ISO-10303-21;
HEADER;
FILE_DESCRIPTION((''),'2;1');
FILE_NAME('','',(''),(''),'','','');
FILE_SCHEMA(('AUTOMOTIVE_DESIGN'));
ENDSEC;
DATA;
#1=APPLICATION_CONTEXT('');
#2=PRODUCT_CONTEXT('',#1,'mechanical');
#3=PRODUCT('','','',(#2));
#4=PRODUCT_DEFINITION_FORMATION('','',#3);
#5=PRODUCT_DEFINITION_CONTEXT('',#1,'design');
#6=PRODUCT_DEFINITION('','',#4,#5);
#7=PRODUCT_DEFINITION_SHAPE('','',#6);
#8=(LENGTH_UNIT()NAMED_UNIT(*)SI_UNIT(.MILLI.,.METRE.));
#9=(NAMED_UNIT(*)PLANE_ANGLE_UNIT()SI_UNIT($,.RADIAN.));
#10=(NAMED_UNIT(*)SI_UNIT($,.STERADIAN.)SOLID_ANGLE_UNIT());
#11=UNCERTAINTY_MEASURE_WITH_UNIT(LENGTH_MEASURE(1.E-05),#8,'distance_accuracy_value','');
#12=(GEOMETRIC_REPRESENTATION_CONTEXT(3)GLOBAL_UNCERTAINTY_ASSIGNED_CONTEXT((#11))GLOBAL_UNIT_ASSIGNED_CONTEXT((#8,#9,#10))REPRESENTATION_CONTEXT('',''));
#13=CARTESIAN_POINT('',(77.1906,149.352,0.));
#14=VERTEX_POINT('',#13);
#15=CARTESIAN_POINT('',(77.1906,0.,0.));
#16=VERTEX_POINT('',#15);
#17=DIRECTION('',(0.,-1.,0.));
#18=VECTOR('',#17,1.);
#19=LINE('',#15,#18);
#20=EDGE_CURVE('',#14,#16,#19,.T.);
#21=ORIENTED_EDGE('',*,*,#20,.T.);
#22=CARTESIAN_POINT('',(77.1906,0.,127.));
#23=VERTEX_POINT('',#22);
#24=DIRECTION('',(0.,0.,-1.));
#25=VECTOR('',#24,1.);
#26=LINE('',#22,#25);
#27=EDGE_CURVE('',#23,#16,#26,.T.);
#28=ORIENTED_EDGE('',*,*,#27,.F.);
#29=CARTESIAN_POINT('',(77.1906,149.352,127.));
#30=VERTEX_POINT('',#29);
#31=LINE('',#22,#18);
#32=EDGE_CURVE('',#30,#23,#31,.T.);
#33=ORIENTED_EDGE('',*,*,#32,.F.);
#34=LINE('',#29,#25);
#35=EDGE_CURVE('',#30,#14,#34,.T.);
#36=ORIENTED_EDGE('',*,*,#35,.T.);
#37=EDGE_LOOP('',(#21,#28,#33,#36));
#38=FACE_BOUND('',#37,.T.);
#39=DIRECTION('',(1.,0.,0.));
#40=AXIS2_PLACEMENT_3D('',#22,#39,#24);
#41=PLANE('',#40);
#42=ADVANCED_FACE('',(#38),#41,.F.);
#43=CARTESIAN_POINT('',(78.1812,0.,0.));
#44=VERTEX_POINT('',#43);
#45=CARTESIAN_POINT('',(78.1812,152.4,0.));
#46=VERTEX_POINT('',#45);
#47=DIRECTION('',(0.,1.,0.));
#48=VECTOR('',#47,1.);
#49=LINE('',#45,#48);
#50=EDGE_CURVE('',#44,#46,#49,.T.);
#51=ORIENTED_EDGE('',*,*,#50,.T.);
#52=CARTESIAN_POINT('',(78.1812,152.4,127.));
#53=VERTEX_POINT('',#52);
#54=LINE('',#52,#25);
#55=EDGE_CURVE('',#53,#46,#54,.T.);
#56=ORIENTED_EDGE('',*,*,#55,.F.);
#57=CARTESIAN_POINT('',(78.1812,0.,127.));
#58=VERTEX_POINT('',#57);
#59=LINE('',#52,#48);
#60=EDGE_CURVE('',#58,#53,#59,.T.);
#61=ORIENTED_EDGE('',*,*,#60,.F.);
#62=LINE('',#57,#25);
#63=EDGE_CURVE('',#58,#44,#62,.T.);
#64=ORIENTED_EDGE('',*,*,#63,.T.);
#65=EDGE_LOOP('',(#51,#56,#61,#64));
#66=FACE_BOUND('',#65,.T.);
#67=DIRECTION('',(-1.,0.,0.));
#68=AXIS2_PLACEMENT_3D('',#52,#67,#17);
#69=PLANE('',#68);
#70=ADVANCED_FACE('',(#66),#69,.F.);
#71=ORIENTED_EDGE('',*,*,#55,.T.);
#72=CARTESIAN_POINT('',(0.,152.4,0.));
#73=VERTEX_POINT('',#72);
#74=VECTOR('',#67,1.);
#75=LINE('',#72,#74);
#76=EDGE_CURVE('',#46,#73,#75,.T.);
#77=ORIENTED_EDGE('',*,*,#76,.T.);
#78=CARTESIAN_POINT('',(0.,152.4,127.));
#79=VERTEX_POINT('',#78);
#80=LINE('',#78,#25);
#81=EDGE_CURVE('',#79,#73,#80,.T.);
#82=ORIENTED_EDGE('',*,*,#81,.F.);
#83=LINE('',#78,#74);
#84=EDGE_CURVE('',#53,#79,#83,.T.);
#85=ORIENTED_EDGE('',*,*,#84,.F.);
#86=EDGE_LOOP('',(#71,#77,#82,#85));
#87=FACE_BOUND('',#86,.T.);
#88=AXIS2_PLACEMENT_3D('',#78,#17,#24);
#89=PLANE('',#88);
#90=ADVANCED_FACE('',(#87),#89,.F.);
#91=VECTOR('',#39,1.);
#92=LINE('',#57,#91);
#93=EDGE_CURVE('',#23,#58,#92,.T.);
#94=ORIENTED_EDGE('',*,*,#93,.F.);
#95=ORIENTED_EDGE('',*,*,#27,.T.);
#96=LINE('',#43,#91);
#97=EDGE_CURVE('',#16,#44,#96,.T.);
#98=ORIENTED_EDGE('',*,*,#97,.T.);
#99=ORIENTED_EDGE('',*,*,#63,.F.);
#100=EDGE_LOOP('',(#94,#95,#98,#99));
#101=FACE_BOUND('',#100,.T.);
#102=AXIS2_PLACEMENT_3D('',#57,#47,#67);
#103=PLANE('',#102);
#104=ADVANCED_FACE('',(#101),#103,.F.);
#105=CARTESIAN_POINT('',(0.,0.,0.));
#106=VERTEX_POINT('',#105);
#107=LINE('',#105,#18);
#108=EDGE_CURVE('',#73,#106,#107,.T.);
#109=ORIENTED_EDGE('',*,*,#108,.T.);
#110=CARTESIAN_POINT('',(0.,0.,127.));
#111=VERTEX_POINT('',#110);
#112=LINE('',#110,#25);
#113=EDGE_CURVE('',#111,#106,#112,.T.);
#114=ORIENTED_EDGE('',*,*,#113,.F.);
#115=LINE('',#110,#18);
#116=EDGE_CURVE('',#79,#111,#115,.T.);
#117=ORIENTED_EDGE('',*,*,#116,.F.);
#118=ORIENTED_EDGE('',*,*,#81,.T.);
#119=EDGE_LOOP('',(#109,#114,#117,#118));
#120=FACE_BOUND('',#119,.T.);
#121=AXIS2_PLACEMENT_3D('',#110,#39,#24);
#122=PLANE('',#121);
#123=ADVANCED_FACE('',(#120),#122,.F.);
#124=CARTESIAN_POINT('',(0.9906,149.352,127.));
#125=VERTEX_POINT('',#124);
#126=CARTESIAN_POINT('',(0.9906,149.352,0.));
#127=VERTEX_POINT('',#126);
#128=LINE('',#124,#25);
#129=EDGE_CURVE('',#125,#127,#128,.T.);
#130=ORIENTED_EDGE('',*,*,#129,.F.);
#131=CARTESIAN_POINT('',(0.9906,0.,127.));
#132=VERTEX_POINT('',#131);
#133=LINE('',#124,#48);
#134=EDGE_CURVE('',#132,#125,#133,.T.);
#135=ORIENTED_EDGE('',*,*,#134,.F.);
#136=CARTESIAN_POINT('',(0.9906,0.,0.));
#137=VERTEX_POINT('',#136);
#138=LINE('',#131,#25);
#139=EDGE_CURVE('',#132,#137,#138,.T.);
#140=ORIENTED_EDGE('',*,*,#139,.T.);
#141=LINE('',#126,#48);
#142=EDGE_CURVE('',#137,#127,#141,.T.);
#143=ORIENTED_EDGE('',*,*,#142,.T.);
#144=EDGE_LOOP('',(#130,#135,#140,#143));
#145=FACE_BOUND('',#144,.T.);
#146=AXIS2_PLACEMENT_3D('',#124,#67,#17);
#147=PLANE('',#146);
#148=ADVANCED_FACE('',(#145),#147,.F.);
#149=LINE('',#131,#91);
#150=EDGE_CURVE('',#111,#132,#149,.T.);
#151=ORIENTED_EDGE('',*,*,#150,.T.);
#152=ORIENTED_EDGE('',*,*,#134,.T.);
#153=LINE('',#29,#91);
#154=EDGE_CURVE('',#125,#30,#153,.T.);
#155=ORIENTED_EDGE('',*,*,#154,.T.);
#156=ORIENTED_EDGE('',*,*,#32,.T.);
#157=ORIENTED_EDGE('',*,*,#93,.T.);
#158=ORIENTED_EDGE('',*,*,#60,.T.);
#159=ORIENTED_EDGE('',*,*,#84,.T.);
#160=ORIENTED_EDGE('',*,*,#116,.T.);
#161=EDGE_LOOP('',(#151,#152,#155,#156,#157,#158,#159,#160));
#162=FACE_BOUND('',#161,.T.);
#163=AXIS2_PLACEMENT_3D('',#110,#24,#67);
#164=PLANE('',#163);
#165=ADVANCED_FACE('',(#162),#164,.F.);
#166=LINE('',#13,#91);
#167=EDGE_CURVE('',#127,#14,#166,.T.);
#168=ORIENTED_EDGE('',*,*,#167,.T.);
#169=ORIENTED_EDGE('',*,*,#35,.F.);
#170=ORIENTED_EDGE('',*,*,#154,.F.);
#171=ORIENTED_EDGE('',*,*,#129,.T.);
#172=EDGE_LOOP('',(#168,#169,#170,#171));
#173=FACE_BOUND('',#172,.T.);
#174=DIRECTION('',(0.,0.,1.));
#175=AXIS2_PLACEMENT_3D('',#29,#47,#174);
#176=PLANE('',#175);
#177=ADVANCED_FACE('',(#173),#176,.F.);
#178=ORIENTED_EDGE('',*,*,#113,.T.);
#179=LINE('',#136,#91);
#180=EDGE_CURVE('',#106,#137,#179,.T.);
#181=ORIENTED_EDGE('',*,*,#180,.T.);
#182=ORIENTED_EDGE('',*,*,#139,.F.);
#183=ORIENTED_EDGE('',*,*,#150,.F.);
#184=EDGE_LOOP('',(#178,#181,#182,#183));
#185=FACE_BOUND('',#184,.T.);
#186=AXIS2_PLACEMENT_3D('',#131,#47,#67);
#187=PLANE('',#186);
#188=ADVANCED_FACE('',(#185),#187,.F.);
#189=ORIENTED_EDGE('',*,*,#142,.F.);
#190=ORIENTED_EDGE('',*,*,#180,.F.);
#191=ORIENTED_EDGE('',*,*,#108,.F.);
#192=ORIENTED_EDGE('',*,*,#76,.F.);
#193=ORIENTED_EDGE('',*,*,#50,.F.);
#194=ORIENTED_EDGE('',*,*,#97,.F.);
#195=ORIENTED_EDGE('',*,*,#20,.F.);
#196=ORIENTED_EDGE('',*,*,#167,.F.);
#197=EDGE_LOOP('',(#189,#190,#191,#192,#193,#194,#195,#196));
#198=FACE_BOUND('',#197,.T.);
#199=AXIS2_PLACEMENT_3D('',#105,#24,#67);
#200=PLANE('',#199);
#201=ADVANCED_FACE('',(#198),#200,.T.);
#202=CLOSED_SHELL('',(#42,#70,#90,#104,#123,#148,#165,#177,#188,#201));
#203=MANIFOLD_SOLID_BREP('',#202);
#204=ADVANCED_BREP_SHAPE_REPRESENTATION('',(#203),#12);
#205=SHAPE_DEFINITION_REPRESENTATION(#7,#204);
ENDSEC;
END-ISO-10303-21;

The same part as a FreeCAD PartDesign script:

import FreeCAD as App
import Part
import Sketcher
Q = App.Units.Quantity

doc = App.newDocument("Part")
body = doc.addObject("PartDesign::Body", "Body")

# Sketch on XY plane
sketch1 = body.newObject("Sketcher::SketchObject", "Sketch")
sketch1.AttachmentSupport = (doc.getObject("XY_Plane"), [""])
sketch1.MapMode = "FlatFace"
sketch1.addGeometry([
    Part.LineSegment(App.Vector(0, 152.4, 0), App.Vector(0, 0, 0)),  # 0
    Part.LineSegment(App.Vector(0, 0, 0), App.Vector(0.9906, 0, 0)),  # 1
    Part.LineSegment(App.Vector(0.9906, 0, 0), App.Vector(0.9906, 149.352, 0)),  # 2
    Part.LineSegment(App.Vector(0.9906, 149.352, 0), App.Vector(77.1906, 149.352, 0)),  # 3
    Part.LineSegment(App.Vector(77.1906, 149.352, 0), App.Vector(77.1906, 0, 0)),  # 4
    Part.LineSegment(App.Vector(77.1906, 0, 0), App.Vector(78.1812, 0, 0)),  # 5
    Part.LineSegment(App.Vector(78.1812, 0, 0), App.Vector(78.1812, 152.4, 0)),  # 6
    Part.LineSegment(App.Vector(78.1812, 152.4, 0), App.Vector(0, 152.4, 0)),  # 7
], False)
sketch1.addConstraint([
    Sketcher.Constraint("Coincident", 0, 2, 1, 1),
    Sketcher.Constraint("Coincident", 1, 2, 2, 1),
    Sketcher.Constraint("Coincident", 2, 2, 3, 1),
    Sketcher.Constraint("Coincident", 3, 2, 4, 1),
    Sketcher.Constraint("Coincident", 4, 2, 5, 1),
    Sketcher.Constraint("Coincident", 5, 2, 6, 1),
    Sketcher.Constraint("Coincident", 6, 2, 7, 1),
    Sketcher.Constraint("Coincident", 7, 2, 0, 1),
    Sketcher.Constraint("Vertical", 0),
    Sketcher.Constraint("Horizontal", 1),
    Sketcher.Constraint("Vertical", 2),
    Sketcher.Constraint("Horizontal", 3),
    Sketcher.Constraint("Vertical", 4),
    Sketcher.Constraint("Horizontal", 5),
    Sketcher.Constraint("Vertical", 6),
    Sketcher.Constraint("Horizontal", 7),
    Sketcher.Constraint("Coincident", 0, 2, -1, 1),
    Sketcher.Constraint("PointOnObject", 4, 2, -1),
    Sketcher.Constraint("Equal", 1, 5),
    Sketcher.Constraint("DistanceX", 3, 1, 3, 2, Q("3 in")),
    Sketcher.Constraint("DistanceY", 0, 2, 0, 1, Q("6 in")),
    Sketcher.Constraint("DistanceY", 2, 1, 2, 2, Q("5.88 in")),
    Sketcher.Constraint("DistanceX", 1, 1, 1, 2, Q("0.039 in")),
])
pad1 = body.newObject("PartDesign::Pad", "Pad")
pad1.Profile = sketch1
pad1.Length = Q("5 in")

doc.recompute()
